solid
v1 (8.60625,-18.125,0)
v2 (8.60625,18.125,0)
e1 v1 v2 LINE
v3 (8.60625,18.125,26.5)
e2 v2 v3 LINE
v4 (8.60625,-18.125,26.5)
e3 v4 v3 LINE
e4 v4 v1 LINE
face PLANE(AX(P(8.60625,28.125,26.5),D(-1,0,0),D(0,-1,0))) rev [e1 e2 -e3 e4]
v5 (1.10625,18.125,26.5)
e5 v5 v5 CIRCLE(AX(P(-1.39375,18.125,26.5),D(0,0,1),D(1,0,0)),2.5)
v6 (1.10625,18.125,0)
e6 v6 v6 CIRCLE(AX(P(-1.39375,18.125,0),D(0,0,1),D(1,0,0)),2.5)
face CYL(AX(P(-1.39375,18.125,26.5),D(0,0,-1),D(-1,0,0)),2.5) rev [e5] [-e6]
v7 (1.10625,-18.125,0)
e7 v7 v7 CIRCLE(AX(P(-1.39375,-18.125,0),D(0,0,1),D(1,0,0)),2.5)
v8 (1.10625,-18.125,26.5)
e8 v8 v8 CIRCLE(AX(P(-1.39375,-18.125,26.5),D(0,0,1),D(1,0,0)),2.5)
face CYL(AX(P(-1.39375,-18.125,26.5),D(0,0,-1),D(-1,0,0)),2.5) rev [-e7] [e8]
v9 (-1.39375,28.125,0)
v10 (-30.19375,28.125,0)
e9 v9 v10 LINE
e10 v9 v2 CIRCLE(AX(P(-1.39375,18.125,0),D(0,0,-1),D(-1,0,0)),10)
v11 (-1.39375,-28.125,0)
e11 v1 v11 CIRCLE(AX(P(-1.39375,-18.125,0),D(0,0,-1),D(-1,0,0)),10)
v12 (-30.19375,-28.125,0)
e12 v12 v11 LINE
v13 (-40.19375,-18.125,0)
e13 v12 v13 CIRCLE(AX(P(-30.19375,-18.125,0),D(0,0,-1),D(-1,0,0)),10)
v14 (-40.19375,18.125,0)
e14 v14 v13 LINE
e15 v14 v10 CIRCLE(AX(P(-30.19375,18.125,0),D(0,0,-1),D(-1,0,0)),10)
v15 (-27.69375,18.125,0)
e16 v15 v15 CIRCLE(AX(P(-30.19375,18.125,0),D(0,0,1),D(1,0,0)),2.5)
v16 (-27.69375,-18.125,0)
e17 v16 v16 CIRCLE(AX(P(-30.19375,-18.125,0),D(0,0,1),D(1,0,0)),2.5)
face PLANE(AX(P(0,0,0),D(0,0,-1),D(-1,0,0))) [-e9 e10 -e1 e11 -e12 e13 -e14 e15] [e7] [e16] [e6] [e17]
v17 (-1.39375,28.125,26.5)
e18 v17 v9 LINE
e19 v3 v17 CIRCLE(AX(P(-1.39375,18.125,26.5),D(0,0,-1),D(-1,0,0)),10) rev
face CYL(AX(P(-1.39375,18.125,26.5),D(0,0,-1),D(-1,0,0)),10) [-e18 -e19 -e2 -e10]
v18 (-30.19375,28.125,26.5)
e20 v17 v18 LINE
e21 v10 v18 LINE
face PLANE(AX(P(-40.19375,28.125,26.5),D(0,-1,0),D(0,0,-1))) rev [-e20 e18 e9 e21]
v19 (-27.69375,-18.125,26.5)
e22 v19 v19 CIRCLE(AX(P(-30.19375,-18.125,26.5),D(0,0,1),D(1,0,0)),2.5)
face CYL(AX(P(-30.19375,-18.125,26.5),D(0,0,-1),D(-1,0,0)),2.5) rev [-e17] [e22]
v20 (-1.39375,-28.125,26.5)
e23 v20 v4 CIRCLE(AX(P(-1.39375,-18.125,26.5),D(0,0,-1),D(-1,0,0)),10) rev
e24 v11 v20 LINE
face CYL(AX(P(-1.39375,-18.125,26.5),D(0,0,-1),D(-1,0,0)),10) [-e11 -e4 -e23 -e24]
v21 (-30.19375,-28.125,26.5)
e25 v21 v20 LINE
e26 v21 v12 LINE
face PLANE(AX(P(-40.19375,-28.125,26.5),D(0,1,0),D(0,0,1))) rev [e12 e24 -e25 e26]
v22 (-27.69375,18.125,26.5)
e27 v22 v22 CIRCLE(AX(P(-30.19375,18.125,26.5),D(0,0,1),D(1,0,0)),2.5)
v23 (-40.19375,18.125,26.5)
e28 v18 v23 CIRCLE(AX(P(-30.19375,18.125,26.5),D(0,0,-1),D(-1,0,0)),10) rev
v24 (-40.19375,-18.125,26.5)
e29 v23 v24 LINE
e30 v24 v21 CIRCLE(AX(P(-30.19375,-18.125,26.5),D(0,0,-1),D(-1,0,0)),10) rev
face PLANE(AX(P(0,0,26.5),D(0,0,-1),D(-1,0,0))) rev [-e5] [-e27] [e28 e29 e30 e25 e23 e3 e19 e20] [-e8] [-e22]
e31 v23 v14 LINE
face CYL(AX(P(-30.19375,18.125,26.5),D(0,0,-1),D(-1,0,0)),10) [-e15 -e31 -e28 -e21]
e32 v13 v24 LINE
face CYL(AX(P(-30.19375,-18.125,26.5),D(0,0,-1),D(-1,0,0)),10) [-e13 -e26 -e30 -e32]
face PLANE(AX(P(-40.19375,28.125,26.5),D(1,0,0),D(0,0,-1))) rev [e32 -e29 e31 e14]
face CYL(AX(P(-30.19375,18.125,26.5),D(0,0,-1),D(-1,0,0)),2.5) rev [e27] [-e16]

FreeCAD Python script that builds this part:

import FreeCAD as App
import Part
import Sketcher
from FreeCAD import Vector


def edges_at(feature, points):
    """Names of the edges that pass closest to the given points."""
    edges = feature.Shape.Edges
    near = lambda p: min(range(len(edges)), key=lambda i: edges[i].distToShape(Part.Vertex(*p))[0])
    return sorted({f"Edge{near(p) + 1}" for p in points})

doc = App.newDocument("Part")
body = doc.addObject("PartDesign::Body", "Body")

sketch1 = doc.addObject("Sketcher::SketchObject", "Sketch")
body.addObject(sketch1)
sketch1.AttachmentSupport = (doc.XY_Plane, [""])
sketch1.MapMode = "FlatFace"
sketch1.addGeometry([
    Part.LineSegment(Vector(-40.19375, 28.125, 0), Vector(-40.19375, -28.125, 0)),
    Part.LineSegment(Vector(-40.19375, -28.125, 0), Vector(8.60625, -28.125, 0)),
    Part.LineSegment(Vector(8.60625, -28.125, 0), Vector(8.60625, 28.125, 0)),
    Part.LineSegment(Vector(8.60625, 28.125, 0), Vector(-40.19375, 28.125, 0)),
    Part.Circle(Vector(-30.19375, -18.125, 0), Vector(0, 0, 1), 2.5),
    Part.Circle(Vector(-1.39375, -18.125, 0), Vector(0, 0, 1), 2.5),
    Part.Circle(Vector(-30.19375, 18.125, 0), Vector(0, 0, 1), 2.5),
    Part.Circle(Vector(-1.39375, 18.125, 0), Vector(0, 0, 1), 2.5),
], False)
sketch1.addConstraint([
    Sketcher.Constraint("Coincident", 0, 2, 1, 1),
    Sketcher.Constraint("Coincident", 1, 2, 2, 1),
    Sketcher.Constraint("Coincident", 2, 2, 3, 1),
    Sketcher.Constraint("Coincident", 3, 2, 0, 1),
    Sketcher.Constraint("Vertical", 0),
    Sketcher.Constraint("Horizontal", 1),
    Sketcher.Constraint("Vertical", 2),
    Sketcher.Constraint("Horizontal", 3),
    Sketcher.Constraint("Equal", 4, 5),
    Sketcher.Constraint("Equal", 5, 6),
    Sketcher.Constraint("Equal", 6, 7),
    Sketcher.Constraint("Symmetric", 4, 3, 6, 3, -1),
    Sketcher.Constraint("Symmetric", 5, 3, 7, 3, -1),
    Sketcher.Constraint("Horizontal", 4, 3, 5, 3),
    Sketcher.Constraint("Diameter", 4, 5.0),
    Sketcher.Constraint("DistanceX", 1, 1, 1, 2, 48.8),
    Sketcher.Constraint("DistanceX", 0, 2, 4, 3, 10.0),
    Sketcher.Constraint("DistanceY", 0, 2, 4, 3, 10.0),
    Sketcher.Constraint("DistanceX", 5, 3, 1, 2, 10.0),
    Sketcher.Constraint("DistanceY", 7, 3, 2, 2, 10.0),
    Sketcher.Constraint("DistanceY", 0, 2, 0, 1, 56.25),
    Sketcher.Constraint("DistanceX", 4, 3, -1, 1, 30.19375),
])
pad1 = doc.addObject("PartDesign::Pad", "Pad")
body.addObject(pad1)
pad1.Profile = sketch1
pad1.Length = 26.5
doc.recompute()

fillet = doc.addObject("PartDesign::Fillet", "Fillet")
body.addObject(fillet)
fillet.Base = (pad1, edges_at(pad1, [
    (8.606, 28.125, 13.25),
    (8.606, -28.125, 13.25),
    (-40.194, -28.125, 13.25),
    (-40.194, 28.125, 13.25),
]))
fillet.Radius = 10

doc.recompute()
